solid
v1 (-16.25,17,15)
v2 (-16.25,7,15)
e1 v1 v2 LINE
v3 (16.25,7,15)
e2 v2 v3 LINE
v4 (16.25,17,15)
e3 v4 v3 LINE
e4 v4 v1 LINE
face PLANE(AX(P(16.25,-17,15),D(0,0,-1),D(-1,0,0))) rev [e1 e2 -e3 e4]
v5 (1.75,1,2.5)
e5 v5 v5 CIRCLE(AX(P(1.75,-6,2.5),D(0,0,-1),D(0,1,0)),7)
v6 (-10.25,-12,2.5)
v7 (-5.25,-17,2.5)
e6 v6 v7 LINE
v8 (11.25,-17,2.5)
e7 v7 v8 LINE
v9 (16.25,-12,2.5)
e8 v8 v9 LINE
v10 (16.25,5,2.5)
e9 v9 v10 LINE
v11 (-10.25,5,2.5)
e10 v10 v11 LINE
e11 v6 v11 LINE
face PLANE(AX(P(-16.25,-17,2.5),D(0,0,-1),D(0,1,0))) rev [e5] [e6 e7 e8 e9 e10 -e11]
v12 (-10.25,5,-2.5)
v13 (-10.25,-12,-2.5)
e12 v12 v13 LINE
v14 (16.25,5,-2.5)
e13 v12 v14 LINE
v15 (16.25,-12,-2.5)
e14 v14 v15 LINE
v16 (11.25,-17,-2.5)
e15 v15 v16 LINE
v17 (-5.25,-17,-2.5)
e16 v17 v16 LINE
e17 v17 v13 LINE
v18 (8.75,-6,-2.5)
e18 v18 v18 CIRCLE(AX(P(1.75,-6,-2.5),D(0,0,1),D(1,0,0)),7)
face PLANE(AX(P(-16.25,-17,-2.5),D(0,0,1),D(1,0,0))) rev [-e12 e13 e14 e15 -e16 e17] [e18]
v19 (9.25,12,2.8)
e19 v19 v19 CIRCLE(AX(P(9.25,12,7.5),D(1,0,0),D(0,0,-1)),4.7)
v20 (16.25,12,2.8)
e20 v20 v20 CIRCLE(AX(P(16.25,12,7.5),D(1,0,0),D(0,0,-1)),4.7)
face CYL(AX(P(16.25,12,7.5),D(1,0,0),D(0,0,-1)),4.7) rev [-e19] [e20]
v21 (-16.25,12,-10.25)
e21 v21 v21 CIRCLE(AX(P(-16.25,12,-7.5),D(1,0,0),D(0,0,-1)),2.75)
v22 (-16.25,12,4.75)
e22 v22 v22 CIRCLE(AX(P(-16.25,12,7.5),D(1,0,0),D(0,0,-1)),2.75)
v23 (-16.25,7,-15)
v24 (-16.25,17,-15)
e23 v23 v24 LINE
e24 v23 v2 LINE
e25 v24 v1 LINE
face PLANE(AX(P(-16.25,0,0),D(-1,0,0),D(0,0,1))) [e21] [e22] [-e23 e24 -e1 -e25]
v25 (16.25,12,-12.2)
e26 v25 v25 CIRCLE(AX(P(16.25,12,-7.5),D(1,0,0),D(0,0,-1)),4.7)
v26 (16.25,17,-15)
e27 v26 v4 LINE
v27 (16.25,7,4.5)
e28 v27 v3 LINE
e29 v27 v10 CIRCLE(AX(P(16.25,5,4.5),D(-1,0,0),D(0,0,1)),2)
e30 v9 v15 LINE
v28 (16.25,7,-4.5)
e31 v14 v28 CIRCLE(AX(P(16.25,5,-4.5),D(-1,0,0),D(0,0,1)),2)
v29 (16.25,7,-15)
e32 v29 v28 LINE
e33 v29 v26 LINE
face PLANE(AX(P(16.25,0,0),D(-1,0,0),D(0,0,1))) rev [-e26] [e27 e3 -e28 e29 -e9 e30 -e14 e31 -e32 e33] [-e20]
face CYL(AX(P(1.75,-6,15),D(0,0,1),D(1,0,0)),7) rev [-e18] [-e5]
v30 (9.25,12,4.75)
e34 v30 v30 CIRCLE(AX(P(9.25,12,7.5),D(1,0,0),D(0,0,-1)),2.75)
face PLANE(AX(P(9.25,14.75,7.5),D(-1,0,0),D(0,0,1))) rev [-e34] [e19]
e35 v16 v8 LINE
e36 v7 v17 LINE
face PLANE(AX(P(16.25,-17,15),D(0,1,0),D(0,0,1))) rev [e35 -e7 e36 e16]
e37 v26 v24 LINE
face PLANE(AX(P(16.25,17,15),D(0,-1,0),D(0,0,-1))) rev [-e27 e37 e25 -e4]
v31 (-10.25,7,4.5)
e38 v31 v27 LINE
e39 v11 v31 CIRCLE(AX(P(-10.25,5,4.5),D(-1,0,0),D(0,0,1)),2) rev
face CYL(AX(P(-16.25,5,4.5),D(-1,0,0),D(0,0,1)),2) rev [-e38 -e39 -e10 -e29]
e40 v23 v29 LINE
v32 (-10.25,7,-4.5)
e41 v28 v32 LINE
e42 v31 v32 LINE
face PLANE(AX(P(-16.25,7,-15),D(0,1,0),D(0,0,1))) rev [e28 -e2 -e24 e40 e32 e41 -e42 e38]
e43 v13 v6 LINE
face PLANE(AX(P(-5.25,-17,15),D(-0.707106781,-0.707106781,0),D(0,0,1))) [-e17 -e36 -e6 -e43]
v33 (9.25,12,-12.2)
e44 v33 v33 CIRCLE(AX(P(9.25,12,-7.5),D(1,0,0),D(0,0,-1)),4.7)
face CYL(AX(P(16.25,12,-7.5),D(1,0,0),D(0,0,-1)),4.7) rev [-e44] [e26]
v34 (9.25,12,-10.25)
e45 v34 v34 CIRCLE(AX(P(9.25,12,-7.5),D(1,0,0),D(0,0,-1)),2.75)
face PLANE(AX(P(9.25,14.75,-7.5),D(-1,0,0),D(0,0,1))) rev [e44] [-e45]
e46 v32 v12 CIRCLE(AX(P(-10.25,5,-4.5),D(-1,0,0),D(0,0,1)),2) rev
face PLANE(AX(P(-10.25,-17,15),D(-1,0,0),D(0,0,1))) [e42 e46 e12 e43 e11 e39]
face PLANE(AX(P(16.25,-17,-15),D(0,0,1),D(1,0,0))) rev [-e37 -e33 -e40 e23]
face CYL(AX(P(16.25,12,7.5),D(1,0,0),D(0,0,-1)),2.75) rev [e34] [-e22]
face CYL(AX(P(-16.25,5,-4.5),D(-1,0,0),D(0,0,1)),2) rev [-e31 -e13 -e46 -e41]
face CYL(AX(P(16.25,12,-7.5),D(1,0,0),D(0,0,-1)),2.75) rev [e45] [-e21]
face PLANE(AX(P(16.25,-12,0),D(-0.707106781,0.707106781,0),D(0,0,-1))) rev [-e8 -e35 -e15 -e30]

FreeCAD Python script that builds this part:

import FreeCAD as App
import Part
import Sketcher
Q = App.Units.Quantity


def edges_at(feature, points):
    """Names of the edges that pass closest to the given points."""
    edges = feature.Shape.Edges
    near = lambda p: min(range(len(edges)), key=lambda i: edges[i].distToShape(Part.Vertex(*p))[0])
    return sorted({f"Edge{near(p) + 1}" for p in points})


def add_polygon(sketch, points):
    """Adds a closed chain of lines whose ends are joined by coincident constraints."""
    first, n = sketch.GeometryCount, len(points)
    for a, b in zip(points, points[1:] + points[:1]):
        sketch.addGeometry(Part.LineSegment(App.Vector(*a, 0), App.Vector(*b, 0)), False)
    for i in range(n):
        sketch.addConstraint(Sketcher.Constraint("Coincident", first + i, 2, first + (i + 1) % n, 1))

doc = App.newDocument("Part")
params = doc.addObject("Spreadsheet::Sheet", "Params")
for row, (alias, value) in enumerate([
    ("sketch1_width", "34 mm"),
    ("sketch1_height", "30 mm"),
    ("pad1_length", "32.5 mm"),
    ("sketch2_width", "24 mm"),
    ("sketch2_height", "12.5 mm"),
    ("sketch3_width", "6 mm"),
    ("sketch3_height", "24 mm"),
    ("sketch4_diameter", "14 mm"),
    ("hole_diameter", "14 mm"),
    ("sketch5_diameter", "5.5 mm"),
    ("hole2_diameter", "5.5 mm"),
    ("hole2_cbore_diameter", "9.4 mm"),
    ("hole2_cbore_depth", "7 mm"),
    ("fillet_radius", "2 mm"),
    ("chamfer_size", "5 mm"),
], start=1):
    params.set(f"A{row}", alias)
    params.set(f"B{row}", "=" + value)
    params.setAlias(f"B{row}", alias)

body = doc.addObject("PartDesign::Body", "Body")

# Sketch on YZ plane
sketch1 = body.newObject("Sketcher::SketchObject", "Sketch")
sketch1.AttachmentSupport = (doc.getObject("YZ_Plane"), [""])
sketch1.MapMode = "FlatFace"
add_polygon(sketch1, [(17, 15), (-17, 15), (-17, -15), (17, -15)])  # lines 0-3
sketch1.addConstraint([
    Sketcher.Constraint("Horizontal", 0),
    Sketcher.Constraint("Vertical", 1),
    Sketcher.Constraint("Horizontal", 2),
    Sketcher.Constraint("Vertical", 3),
    Sketcher.Constraint("Symmetric", 0, 2, 2, 2, -1, 1),
    Sketcher.Constraint("DistanceX", 0, 2, 0, 1, Q("34 mm")),
    Sketcher.Constraint("DistanceY", 1, 2, 1, 1, Q("30 mm")),
])
sketch1.setExpression("Constraints[9]", "Params.sketch1_width")
sketch1.setExpression("Constraints[10]", "Params.sketch1_height")
pad1 = body.newObject("PartDesign::Pad", "Pad")
pad1.Profile = sketch1
pad1.setExpression("Length", "Params.pad1_length")
pad1.Midplane = True

# Sketch on YZ plane
sketch2 = body.newObject("Sketcher::SketchObject", "Sketch001")
sketch2.AttachmentSupport = (doc.getObject("YZ_Plane"), [""])
sketch2.MapMode = "FlatFace"
sketch2.AttachmentOffset = App.Placement(App.Vector(0, 0, 16.25), App.Rotation())
add_polygon(sketch2, [(7, -2), (-17, -2), (-17, -15), (7, -15)])  # lines 0-3
add_polygon(sketch2, [(7, 15), (-17, 15), (-17, 2), (7, 2)])  # lines 4-7
sketch2.addConstraint([
    Sketcher.Constraint("Horizontal", 0),
    Sketcher.Constraint("Vertical", 1),
    Sketcher.Constraint("Horizontal", 2),
    Sketcher.Constraint("Vertical", 3),
    Sketcher.Constraint("Horizontal", 4),
    Sketcher.Constraint("Vertical", 5),
    Sketcher.Constraint("Horizontal", 6),
    Sketcher.Constraint("Vertical", 7),
    Sketcher.Constraint("Symmetric", 1, 2, 4, 2, -1),
    Sketcher.Constraint("Symmetric", 3, 2, 6, 2, -1),
    Sketcher.Constraint("DistanceX", 0, 2, 0, 1, Q("24 mm")),
    Sketcher.Constraint("DistanceY", 1, 2, 1, 1, Q("12.5 mm")),
    Sketcher.Constraint("DistanceX", 0, 2, -1, 1, Q("17 mm")),
    Sketcher.Constraint("DistanceY", 1, 2, -1, 1, Q("15 mm")),
])
sketch2.setExpression("Constraints[18]", "Params.sketch2_width")
sketch2.setExpression("Constraints[19]", "Params.sketch2_height")
pocket1 = body.newObject("PartDesign::Pocket", "Pocket")
pocket1.Profile = sketch2
pocket1.Type = "ThroughAll"

# Sketch on XY plane
sketch3 = body.newObject("Sketcher::SketchObject", "Sketch002")
sketch3.AttachmentSupport = (doc.getObject("XY_Plane"), [""])
sketch3.MapMode = "FlatFace"
sketch3.AttachmentOffset = App.Placement(App.Vector(0, 0, -15), App.Rotation())
add_polygon(sketch3, [(-16, 7), (-16, -17), (-10, -17), (-10, 7)])  # lines 0-3
sketch3.addConstraint([
    Sketcher.Constraint("Vertical", 0),
    Sketcher.Constraint("Horizontal", 1),
    Sketcher.Constraint("Vertical", 2),
    Sketcher.Constraint("Horizontal", 3),
    Sketcher.Constraint("DistanceX", 1, 1, 1, 2, Q("6 mm")),
    Sketcher.Constraint("DistanceY", 0, 2, 0, 1, Q("24 mm")),
    Sketcher.Constraint("DistanceY", 0, 2, -1, 1, Q("17 mm")),
    Sketcher.Constraint("DistanceX", 0, 2, -1, 1, Q("16.25 mm")),
])
sketch3.setExpression("Constraints[8]", "Params.sketch3_width")
sketch3.setExpression("Constraints[9]", "Params.sketch3_height")
pocket2 = body.newObject("PartDesign::Pocket", "Pocket001")
pocket2.Profile = sketch3
pocket2.Type = "ThroughAll"
pocket2.Reversed = True

# Sketch on XY plane
sketch4 = body.newObject("Sketcher::SketchObject", "Sketch003")
sketch4.AttachmentSupport = (doc.getObject("XY_Plane"), [""])
sketch4.MapMode = "FlatFace"
sketch4.AttachmentOffset = App.Placement(App.Vector(0, 0, 15), App.Rotation())
sketch4.addGeometry(Part.Circle(App.Vector(2, -6, 0), App.Vector(0, 0, 1), 7), False)
sketch4.addConstraint([
    Sketcher.Constraint("Diameter", 0, Q("14 mm")),
    Sketcher.Constraint("DistanceY", 0, 3, -1, 1, Q("6 mm")),
    Sketcher.Constraint("DistanceX", -1, 1, 0, 3, Q("1.75 mm")),
])
sketch4.setExpression("Constraints[0]", "Params.sketch4_diameter")
doc.recompute()
hole = body.newObject("PartDesign::Hole", "Hole")
hole.Profile = sketch4
hole.ThreadType = "None"
hole.setExpression("Diameter", "Params.hole_diameter")
hole.DepthType = "ThroughAll"

# Sketch on YZ plane
sketch5 = body.newObject("Sketcher::SketchObject", "Sketch004")
sketch5.AttachmentSupport = (doc.getObject("YZ_Plane"), [""])
sketch5.MapMode = "FlatFace"
sketch5.AttachmentOffset = App.Placement(App.Vector(0, 0, 16.25), App.Rotation())
sketch5.addGeometry([
    Part.Circle(App.Vector(12, -7.5, 0), App.Vector(0, 0, 1), 2.8),
    Part.Circle(App.Vector(12, 7.5, 0), App.Vector(0, 0, 1), 2.8),
], False)
sketch5.addConstraint([
    Sketcher.Constraint("Equal", 0, 1),
    Sketcher.Constraint("Symmetric", 0, 3, 1, 3, -1),
    Sketcher.Constraint("Diameter", 0, Q("5.5 mm")),
    Sketcher.Constraint("DistanceX", -1, 1, 0, 3, Q("12 mm")),
    Sketcher.Constraint("DistanceY", 0, 3, 1, 3, Q("15 mm")),
])
sketch5.setExpression("Constraints[2]", "Params.sketch5_diameter")
doc.recompute()
hole2 = body.newObject("PartDesign::Hole", "Hole001")
hole2.Profile = sketch5
hole2.ThreadType = "None"
hole2.setExpression("Diameter", "Params.hole2_diameter")
hole2.DepthType = "ThroughAll"
hole2.HoleCutType = "Counterbore"
hole2.setExpression("HoleCutDiameter", "Params.hole2_cbore_diameter")
hole2.setExpression("HoleCutDepth", "Params.hole2_cbore_depth")
doc.recompute()

fillet = body.newObject("PartDesign::Fillet", "Fillet")
fillet.Base = (hole2, edges_at(hole2, [(3, 7, 2.5), (3, 7, -2.5)]))
fillet.setExpression("Radius", "Params.fillet_radius")
doc.recompute()

chamfer = body.newObject("PartDesign::Chamfer", "Chamfer")
chamfer.Base = (fillet, edges_at(fillet, [(16.25, -17, 0), (-10.25, -17, 0)]))
chamfer.setExpression("Size", "Params.chamfer_size")

doc.recompute()
